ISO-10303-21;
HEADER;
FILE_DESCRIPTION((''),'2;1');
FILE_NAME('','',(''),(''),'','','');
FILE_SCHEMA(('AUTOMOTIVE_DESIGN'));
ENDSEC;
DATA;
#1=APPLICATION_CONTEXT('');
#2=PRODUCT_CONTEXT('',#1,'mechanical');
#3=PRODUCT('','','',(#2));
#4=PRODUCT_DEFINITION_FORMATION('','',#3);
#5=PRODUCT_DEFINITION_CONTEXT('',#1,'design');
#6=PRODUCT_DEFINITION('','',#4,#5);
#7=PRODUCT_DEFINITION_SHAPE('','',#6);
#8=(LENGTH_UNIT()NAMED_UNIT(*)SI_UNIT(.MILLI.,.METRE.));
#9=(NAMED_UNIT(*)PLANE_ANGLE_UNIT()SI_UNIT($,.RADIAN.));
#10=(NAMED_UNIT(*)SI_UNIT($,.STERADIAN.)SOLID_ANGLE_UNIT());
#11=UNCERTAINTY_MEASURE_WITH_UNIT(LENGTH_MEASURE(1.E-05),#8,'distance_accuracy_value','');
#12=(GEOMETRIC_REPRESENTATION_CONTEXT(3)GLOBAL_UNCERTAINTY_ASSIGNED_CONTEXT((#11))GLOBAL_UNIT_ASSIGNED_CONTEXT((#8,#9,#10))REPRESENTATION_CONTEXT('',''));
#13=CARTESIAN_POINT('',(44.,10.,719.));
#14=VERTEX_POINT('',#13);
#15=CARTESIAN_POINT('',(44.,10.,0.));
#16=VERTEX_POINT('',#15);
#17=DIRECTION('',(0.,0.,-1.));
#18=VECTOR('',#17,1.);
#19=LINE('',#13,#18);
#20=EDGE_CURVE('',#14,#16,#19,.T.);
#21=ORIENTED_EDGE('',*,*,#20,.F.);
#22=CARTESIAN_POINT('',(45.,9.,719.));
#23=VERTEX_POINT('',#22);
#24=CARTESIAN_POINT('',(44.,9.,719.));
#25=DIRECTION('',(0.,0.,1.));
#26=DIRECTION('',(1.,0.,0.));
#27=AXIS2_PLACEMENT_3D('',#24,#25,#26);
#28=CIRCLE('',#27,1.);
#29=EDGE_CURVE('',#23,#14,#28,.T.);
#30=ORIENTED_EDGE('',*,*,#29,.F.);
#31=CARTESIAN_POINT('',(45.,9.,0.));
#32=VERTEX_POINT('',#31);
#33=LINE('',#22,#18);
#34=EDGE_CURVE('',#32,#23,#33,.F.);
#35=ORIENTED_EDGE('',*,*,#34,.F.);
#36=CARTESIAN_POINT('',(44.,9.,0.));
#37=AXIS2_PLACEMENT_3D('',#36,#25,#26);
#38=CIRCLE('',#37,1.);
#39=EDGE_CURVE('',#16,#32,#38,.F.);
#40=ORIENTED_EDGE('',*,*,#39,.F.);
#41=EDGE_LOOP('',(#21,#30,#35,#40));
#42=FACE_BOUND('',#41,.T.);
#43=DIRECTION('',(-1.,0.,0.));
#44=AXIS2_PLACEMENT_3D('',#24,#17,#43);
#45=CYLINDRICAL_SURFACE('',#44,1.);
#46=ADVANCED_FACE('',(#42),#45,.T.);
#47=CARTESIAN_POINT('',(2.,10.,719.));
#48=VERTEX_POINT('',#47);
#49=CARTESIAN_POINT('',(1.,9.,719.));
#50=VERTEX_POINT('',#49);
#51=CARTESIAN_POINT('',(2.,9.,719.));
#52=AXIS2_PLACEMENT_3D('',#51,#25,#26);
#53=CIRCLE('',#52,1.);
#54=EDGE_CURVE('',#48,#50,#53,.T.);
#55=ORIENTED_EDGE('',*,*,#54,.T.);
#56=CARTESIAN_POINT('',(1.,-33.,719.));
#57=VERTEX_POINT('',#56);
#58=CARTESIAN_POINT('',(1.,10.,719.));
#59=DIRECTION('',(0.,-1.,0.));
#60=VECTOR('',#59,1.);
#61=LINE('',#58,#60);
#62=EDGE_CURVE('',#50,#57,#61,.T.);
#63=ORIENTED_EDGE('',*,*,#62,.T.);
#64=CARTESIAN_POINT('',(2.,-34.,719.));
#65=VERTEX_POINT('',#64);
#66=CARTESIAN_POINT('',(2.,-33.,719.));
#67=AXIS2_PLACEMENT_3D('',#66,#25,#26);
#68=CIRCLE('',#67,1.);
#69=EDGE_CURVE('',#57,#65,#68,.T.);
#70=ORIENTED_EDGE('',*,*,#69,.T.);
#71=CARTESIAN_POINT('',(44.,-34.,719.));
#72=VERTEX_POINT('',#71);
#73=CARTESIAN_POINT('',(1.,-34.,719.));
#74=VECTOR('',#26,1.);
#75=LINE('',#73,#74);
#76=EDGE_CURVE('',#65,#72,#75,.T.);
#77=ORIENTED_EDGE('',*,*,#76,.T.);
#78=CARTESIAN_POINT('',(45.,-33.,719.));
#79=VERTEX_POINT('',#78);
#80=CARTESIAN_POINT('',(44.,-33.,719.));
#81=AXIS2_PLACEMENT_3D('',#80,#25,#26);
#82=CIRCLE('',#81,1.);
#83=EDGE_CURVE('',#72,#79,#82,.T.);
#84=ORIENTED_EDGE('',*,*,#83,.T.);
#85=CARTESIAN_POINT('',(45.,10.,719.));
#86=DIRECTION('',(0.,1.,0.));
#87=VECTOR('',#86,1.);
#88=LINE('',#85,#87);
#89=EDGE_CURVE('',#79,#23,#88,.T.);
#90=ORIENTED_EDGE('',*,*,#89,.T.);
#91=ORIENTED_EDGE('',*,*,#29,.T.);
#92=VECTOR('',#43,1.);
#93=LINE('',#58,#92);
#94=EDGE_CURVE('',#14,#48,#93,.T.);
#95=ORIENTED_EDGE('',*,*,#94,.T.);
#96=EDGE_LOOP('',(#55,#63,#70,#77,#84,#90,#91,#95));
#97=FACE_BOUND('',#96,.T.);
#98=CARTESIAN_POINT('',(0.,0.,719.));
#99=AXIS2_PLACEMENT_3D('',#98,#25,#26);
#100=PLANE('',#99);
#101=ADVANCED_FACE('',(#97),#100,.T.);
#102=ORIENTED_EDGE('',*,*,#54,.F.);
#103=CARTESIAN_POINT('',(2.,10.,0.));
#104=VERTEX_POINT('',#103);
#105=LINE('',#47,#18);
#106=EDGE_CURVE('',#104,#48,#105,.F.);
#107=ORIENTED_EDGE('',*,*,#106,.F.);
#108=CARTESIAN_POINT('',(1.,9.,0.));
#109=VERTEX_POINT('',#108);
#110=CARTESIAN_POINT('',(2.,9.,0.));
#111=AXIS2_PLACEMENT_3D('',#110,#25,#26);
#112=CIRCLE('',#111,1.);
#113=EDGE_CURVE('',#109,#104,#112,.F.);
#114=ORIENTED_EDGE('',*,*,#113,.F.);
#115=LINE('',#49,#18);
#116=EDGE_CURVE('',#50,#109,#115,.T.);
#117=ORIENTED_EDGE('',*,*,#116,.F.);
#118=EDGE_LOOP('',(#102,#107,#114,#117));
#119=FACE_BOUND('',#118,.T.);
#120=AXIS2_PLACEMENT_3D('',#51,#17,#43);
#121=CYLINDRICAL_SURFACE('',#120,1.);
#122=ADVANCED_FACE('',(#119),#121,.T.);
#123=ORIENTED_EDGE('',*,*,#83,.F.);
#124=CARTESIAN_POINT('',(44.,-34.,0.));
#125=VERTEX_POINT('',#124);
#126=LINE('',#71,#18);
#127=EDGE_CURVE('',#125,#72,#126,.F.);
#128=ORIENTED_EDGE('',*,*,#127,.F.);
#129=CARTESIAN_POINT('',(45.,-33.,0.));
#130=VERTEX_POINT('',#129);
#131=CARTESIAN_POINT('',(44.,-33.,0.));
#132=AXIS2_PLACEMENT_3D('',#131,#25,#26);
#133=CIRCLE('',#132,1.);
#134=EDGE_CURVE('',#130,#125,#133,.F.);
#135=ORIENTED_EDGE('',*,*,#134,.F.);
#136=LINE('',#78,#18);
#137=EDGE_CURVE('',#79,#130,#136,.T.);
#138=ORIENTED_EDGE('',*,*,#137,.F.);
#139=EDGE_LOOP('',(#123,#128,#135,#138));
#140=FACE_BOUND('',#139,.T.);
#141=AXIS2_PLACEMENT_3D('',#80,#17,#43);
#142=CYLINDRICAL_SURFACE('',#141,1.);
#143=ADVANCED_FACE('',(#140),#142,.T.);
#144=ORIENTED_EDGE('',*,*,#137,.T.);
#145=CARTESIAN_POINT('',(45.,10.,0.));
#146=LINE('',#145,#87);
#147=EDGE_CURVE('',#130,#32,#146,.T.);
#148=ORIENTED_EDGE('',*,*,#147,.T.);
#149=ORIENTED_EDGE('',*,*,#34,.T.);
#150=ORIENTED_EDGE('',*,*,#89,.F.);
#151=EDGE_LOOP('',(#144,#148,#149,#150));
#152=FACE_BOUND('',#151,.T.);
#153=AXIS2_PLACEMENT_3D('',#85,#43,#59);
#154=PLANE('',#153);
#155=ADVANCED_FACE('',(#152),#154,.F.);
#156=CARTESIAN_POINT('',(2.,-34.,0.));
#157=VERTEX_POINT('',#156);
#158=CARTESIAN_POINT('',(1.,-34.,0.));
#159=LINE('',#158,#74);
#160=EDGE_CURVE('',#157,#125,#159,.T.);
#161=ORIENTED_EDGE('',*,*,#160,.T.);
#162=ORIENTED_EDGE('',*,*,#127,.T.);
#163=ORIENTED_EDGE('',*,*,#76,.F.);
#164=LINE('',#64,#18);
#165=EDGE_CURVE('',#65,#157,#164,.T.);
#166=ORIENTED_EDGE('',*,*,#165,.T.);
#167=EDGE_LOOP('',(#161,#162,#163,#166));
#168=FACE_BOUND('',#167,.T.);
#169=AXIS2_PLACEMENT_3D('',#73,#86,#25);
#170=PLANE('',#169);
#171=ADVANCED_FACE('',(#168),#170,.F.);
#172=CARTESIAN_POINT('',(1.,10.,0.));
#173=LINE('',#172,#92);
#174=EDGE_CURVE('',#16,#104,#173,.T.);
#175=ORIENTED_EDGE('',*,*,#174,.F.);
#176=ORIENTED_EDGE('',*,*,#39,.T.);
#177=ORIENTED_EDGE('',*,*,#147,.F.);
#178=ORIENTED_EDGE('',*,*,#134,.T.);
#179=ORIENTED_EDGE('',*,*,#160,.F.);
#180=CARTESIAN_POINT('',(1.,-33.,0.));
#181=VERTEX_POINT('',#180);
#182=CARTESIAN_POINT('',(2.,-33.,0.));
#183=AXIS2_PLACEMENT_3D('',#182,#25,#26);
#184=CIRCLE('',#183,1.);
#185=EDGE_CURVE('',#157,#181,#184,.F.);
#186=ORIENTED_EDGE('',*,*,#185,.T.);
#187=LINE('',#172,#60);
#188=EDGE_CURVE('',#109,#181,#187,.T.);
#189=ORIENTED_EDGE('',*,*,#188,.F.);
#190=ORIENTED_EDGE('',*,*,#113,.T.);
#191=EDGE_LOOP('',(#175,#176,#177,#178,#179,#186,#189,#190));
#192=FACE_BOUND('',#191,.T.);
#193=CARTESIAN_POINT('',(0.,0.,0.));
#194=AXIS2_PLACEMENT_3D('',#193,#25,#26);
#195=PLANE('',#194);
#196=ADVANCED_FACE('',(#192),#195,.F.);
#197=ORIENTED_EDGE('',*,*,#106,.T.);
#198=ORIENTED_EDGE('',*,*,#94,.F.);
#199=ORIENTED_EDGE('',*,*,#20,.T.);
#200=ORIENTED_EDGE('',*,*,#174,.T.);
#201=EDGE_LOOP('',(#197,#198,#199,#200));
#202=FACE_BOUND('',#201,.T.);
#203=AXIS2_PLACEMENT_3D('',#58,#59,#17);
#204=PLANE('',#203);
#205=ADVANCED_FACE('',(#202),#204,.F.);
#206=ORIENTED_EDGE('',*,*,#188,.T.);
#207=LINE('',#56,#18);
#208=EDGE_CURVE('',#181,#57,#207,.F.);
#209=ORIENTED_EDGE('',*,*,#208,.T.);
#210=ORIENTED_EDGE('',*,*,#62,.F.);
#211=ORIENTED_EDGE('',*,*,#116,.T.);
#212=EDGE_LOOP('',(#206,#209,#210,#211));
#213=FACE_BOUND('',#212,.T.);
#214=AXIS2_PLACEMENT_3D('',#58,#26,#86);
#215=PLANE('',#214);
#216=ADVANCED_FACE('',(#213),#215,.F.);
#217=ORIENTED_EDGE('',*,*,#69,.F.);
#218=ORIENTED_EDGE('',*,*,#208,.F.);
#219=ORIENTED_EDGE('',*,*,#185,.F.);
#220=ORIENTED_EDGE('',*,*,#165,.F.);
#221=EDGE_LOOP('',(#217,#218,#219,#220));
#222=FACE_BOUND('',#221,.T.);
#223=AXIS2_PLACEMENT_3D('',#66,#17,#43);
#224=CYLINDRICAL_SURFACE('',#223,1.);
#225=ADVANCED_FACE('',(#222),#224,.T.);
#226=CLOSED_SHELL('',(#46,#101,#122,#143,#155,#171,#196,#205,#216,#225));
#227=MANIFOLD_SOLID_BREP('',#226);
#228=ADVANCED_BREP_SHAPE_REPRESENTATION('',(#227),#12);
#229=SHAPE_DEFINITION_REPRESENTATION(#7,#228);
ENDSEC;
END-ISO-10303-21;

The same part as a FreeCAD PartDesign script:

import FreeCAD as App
import Part
import Sketcher
from FreeCAD import Vector


def edges_at(feature, points):
    """Names of the edges that pass closest to the given points."""
    edges = feature.Shape.Edges
    near = lambda p: min(range(len(edges)), key=lambda i: edges[i].distToShape(Part.Vertex(*p))[0])
    return sorted({f"Edge{near(p) + 1}" for p in points})


def add_polygon(sketch, points):
    """Adds a closed chain of lines whose ends are joined by coincident constraints."""
    first, n = sketch.GeometryCount, len(points)
    for a, b in zip(points, points[1:] + points[:1]):
        sketch.addGeometry(Part.LineSegment(App.Vector(*a, 0), App.Vector(*b, 0)), False)
    for i in range(n):
        sketch.addConstraint(Sketcher.Constraint("Coincident", first + i, 2, first + (i + 1) % n, 1))

doc = App.newDocument("Part")
body = doc.addObject("PartDesign::Body", "Body")

# Sketch on XY plane
sketch1 = doc.addObject("Sketcher::SketchObject", "Sketch")
body.addObject(sketch1)
sketch1.AttachmentSupport = (doc.XY_Plane, [""])
sketch1.MapMode = "FlatFace"
add_polygon(sketch1, [(1, 10), (1, -34), (45, -34), (45, 10)])  # lines 0-3
sketch1.addConstraint(Sketcher.Constraint("Vertical", 0))
sketch1.addConstraint(Sketcher.Constraint("Horizontal", 1))
sketch1.addConstraint(Sketcher.Constraint("Vertical", 2))
sketch1.addConstraint(Sketcher.Constraint("Horizontal", 3))
sketch1.addConstraint(Sketcher.Constraint("Equal", 3, 0))
sketch1.addConstraint(Sketcher.Constraint("DistanceX", 1, 1, 1, 2, 44.0))
sketch1.addConstraint(Sketcher.Constraint("DistanceX", -1, 1, 0, 2, 1.0))
sketch1.addConstraint(Sketcher.Constraint("DistanceY", 0, 2, -1, 1, 34.0))
pad1 = doc.addObject("PartDesign::Pad", "Pad")
body.addObject(pad1)
pad1.Profile = sketch1
pad1.Length = 719
doc.recompute()

fillet = doc.addObject("PartDesign::Fillet", "Fillet")
body.addObject(fillet)
fillet.Base = (pad1, edges_at(pad1, [
    (1, 10, 359.5),
    (45, 10, 359.5),
    (45, -34, 359.5),
    (1, -34, 359.5),
]))
fillet.Radius = 1

doc.recompute()
